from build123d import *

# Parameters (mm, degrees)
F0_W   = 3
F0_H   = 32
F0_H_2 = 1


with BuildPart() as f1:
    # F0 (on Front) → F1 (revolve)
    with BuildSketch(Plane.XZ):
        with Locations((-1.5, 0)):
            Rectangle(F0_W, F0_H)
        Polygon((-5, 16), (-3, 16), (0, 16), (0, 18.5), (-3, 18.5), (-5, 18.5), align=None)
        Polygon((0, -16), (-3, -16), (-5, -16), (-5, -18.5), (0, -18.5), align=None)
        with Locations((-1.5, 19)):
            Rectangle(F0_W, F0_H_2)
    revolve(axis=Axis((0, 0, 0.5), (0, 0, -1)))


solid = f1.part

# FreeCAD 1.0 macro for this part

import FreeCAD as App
import Part
import Sketcher
Q = App.Units.Quantity

doc = App.newDocument("Part")
params = doc.addObject("Spreadsheet::Sheet", "Params")
for row, (alias, value) in enumerate([
    ("sketch1_width", "2 mm"),
    ("sketch1_width2", "5 mm"),
    ("sketch1_height", "32 mm"),
    ("sketch1_height2", "38 mm"),
    ("sketch1_height3", "1 mm"),
    ("revolution_angle", "360 deg"),
], start=1):
    params.set(f"A{row}", alias)
    params.set(f"B{row}", "=" + value)
    params.setAlias(f"B{row}", alias)

body = doc.addObject("PartDesign::Body", "Body")

# Sketch on XZ plane
sketch1 = body.newObject("Sketcher::SketchObject", "Sketch")
sketch1.AttachmentSupport = (doc.getObject("XZ_Plane"), [""])
sketch1.MapMode = "FlatFace"
sketch1.addGeometry([
    Part.LineSegment(App.Vector(-3, 16, 0), App.Vector(-3, -16, 0)),  # 0
    Part.LineSegment(App.Vector(-3, -16, 0), App.Vector(-5, -16, 0)),  # 1
    Part.LineSegment(App.Vector(-5, -16, 0), App.Vector(-5, -18.5, 0)),  # 2
    Part.LineSegment(App.Vector(-5, -18.5, 0), App.Vector(0, -18.5, 0)),  # 3
    Part.LineSegment(App.Vector(0, -18.5, 0), App.Vector(0, 19.5, 0)),  # 4
    Part.LineSegment(App.Vector(0, 19.5, 0), App.Vector(-3, 19.5, 0)),  # 5
    Part.LineSegment(App.Vector(-3, 19.5, 0), App.Vector(-3, 18.5, 0)),  # 6
    Part.LineSegment(App.Vector(-3, 18.5, 0), App.Vector(-5, 18.5, 0)),  # 7
    Part.LineSegment(App.Vector(-5, 18.5, 0), App.Vector(-5, 16, 0)),  # 8
    Part.LineSegment(App.Vector(-5, 16, 0), App.Vector(-3, 16, 0)),  # 9
], False)
sketch1.addConstraint([
    Sketcher.Constraint("Coincident", 0, 2, 1, 1),
    Sketcher.Constraint("Coincident", 1, 2, 2, 1),
    Sketcher.Constraint("Coincident", 2, 2, 3, 1),
    Sketcher.Constraint("Coincident", 3, 2, 4, 1),
    Sketcher.Constraint("Coincident", 4, 2, 5, 1),
    Sketcher.Constraint("Coincident", 5, 2, 6, 1),
    Sketcher.Constraint("Coincident", 6, 2, 7, 1),
    Sketcher.Constraint("Coincident", 7, 2, 8, 1),
    Sketcher.Constraint("Coincident", 8, 2, 9, 1),
    Sketcher.Constraint("Coincident", 9, 2, 0, 1),
    Sketcher.Constraint("Vertical", 0),
    Sketcher.Constraint("Horizontal", 1),
    Sketcher.Constraint("Vertical", 2),
    Sketcher.Constraint("Horizontal", 3),
    Sketcher.Constraint("Vertical", 4),
    Sketcher.Constraint("Horizontal", 5),
    Sketcher.Constraint("Vertical", 6),
    Sketcher.Constraint("Horizontal", 7),
    Sketcher.Constraint("Vertical", 8),
    Sketcher.Constraint("Horizontal", 9),
    Sketcher.Constraint("Symmetric", 2, 2, 7, 2, -1),
    Sketcher.Constraint("PointOnObject", 3, 2, -2),
    Sketcher.Constraint("Vertical", 0, 2, 5, 2),
    Sketcher.Constraint("Equal", 2, 8),
    Sketcher.Constraint("DistanceX", 1, 2, 1, 1, Q("2 mm")),
    Sketcher.Constraint("DistanceX", 3, 1, 3, 2, Q("5 mm")),
    Sketcher.Constraint("DistanceY", 0, 2, 0, 1, Q("32 mm")),
    Sketcher.Constraint("DistanceY", 4, 1, 4, 2, Q("38 mm")),
    Sketcher.Constraint("DistanceY", 6, 2, 6, 1, Q("1 mm")),
])
sketch1.setExpression("Constraints[24]", "Params.sketch1_width")
sketch1.setExpression("Constraints[25]", "Params.sketch1_width2")
sketch1.setExpression("Constraints[26]", "Params.sketch1_height")
sketch1.setExpression("Constraints[27]", "Params.sketch1_height2")
sketch1.setExpression("Constraints[28]", "Params.sketch1_height3")
revolution = body.newObject("PartDesign::Revolution", "Revolution")
revolution.Profile = sketch1
revolution.ReferenceAxis = (sketch1, ["V_Axis"])
revolution.setExpression("Angle", "Params.revolution_angle")

doc.recompute()
